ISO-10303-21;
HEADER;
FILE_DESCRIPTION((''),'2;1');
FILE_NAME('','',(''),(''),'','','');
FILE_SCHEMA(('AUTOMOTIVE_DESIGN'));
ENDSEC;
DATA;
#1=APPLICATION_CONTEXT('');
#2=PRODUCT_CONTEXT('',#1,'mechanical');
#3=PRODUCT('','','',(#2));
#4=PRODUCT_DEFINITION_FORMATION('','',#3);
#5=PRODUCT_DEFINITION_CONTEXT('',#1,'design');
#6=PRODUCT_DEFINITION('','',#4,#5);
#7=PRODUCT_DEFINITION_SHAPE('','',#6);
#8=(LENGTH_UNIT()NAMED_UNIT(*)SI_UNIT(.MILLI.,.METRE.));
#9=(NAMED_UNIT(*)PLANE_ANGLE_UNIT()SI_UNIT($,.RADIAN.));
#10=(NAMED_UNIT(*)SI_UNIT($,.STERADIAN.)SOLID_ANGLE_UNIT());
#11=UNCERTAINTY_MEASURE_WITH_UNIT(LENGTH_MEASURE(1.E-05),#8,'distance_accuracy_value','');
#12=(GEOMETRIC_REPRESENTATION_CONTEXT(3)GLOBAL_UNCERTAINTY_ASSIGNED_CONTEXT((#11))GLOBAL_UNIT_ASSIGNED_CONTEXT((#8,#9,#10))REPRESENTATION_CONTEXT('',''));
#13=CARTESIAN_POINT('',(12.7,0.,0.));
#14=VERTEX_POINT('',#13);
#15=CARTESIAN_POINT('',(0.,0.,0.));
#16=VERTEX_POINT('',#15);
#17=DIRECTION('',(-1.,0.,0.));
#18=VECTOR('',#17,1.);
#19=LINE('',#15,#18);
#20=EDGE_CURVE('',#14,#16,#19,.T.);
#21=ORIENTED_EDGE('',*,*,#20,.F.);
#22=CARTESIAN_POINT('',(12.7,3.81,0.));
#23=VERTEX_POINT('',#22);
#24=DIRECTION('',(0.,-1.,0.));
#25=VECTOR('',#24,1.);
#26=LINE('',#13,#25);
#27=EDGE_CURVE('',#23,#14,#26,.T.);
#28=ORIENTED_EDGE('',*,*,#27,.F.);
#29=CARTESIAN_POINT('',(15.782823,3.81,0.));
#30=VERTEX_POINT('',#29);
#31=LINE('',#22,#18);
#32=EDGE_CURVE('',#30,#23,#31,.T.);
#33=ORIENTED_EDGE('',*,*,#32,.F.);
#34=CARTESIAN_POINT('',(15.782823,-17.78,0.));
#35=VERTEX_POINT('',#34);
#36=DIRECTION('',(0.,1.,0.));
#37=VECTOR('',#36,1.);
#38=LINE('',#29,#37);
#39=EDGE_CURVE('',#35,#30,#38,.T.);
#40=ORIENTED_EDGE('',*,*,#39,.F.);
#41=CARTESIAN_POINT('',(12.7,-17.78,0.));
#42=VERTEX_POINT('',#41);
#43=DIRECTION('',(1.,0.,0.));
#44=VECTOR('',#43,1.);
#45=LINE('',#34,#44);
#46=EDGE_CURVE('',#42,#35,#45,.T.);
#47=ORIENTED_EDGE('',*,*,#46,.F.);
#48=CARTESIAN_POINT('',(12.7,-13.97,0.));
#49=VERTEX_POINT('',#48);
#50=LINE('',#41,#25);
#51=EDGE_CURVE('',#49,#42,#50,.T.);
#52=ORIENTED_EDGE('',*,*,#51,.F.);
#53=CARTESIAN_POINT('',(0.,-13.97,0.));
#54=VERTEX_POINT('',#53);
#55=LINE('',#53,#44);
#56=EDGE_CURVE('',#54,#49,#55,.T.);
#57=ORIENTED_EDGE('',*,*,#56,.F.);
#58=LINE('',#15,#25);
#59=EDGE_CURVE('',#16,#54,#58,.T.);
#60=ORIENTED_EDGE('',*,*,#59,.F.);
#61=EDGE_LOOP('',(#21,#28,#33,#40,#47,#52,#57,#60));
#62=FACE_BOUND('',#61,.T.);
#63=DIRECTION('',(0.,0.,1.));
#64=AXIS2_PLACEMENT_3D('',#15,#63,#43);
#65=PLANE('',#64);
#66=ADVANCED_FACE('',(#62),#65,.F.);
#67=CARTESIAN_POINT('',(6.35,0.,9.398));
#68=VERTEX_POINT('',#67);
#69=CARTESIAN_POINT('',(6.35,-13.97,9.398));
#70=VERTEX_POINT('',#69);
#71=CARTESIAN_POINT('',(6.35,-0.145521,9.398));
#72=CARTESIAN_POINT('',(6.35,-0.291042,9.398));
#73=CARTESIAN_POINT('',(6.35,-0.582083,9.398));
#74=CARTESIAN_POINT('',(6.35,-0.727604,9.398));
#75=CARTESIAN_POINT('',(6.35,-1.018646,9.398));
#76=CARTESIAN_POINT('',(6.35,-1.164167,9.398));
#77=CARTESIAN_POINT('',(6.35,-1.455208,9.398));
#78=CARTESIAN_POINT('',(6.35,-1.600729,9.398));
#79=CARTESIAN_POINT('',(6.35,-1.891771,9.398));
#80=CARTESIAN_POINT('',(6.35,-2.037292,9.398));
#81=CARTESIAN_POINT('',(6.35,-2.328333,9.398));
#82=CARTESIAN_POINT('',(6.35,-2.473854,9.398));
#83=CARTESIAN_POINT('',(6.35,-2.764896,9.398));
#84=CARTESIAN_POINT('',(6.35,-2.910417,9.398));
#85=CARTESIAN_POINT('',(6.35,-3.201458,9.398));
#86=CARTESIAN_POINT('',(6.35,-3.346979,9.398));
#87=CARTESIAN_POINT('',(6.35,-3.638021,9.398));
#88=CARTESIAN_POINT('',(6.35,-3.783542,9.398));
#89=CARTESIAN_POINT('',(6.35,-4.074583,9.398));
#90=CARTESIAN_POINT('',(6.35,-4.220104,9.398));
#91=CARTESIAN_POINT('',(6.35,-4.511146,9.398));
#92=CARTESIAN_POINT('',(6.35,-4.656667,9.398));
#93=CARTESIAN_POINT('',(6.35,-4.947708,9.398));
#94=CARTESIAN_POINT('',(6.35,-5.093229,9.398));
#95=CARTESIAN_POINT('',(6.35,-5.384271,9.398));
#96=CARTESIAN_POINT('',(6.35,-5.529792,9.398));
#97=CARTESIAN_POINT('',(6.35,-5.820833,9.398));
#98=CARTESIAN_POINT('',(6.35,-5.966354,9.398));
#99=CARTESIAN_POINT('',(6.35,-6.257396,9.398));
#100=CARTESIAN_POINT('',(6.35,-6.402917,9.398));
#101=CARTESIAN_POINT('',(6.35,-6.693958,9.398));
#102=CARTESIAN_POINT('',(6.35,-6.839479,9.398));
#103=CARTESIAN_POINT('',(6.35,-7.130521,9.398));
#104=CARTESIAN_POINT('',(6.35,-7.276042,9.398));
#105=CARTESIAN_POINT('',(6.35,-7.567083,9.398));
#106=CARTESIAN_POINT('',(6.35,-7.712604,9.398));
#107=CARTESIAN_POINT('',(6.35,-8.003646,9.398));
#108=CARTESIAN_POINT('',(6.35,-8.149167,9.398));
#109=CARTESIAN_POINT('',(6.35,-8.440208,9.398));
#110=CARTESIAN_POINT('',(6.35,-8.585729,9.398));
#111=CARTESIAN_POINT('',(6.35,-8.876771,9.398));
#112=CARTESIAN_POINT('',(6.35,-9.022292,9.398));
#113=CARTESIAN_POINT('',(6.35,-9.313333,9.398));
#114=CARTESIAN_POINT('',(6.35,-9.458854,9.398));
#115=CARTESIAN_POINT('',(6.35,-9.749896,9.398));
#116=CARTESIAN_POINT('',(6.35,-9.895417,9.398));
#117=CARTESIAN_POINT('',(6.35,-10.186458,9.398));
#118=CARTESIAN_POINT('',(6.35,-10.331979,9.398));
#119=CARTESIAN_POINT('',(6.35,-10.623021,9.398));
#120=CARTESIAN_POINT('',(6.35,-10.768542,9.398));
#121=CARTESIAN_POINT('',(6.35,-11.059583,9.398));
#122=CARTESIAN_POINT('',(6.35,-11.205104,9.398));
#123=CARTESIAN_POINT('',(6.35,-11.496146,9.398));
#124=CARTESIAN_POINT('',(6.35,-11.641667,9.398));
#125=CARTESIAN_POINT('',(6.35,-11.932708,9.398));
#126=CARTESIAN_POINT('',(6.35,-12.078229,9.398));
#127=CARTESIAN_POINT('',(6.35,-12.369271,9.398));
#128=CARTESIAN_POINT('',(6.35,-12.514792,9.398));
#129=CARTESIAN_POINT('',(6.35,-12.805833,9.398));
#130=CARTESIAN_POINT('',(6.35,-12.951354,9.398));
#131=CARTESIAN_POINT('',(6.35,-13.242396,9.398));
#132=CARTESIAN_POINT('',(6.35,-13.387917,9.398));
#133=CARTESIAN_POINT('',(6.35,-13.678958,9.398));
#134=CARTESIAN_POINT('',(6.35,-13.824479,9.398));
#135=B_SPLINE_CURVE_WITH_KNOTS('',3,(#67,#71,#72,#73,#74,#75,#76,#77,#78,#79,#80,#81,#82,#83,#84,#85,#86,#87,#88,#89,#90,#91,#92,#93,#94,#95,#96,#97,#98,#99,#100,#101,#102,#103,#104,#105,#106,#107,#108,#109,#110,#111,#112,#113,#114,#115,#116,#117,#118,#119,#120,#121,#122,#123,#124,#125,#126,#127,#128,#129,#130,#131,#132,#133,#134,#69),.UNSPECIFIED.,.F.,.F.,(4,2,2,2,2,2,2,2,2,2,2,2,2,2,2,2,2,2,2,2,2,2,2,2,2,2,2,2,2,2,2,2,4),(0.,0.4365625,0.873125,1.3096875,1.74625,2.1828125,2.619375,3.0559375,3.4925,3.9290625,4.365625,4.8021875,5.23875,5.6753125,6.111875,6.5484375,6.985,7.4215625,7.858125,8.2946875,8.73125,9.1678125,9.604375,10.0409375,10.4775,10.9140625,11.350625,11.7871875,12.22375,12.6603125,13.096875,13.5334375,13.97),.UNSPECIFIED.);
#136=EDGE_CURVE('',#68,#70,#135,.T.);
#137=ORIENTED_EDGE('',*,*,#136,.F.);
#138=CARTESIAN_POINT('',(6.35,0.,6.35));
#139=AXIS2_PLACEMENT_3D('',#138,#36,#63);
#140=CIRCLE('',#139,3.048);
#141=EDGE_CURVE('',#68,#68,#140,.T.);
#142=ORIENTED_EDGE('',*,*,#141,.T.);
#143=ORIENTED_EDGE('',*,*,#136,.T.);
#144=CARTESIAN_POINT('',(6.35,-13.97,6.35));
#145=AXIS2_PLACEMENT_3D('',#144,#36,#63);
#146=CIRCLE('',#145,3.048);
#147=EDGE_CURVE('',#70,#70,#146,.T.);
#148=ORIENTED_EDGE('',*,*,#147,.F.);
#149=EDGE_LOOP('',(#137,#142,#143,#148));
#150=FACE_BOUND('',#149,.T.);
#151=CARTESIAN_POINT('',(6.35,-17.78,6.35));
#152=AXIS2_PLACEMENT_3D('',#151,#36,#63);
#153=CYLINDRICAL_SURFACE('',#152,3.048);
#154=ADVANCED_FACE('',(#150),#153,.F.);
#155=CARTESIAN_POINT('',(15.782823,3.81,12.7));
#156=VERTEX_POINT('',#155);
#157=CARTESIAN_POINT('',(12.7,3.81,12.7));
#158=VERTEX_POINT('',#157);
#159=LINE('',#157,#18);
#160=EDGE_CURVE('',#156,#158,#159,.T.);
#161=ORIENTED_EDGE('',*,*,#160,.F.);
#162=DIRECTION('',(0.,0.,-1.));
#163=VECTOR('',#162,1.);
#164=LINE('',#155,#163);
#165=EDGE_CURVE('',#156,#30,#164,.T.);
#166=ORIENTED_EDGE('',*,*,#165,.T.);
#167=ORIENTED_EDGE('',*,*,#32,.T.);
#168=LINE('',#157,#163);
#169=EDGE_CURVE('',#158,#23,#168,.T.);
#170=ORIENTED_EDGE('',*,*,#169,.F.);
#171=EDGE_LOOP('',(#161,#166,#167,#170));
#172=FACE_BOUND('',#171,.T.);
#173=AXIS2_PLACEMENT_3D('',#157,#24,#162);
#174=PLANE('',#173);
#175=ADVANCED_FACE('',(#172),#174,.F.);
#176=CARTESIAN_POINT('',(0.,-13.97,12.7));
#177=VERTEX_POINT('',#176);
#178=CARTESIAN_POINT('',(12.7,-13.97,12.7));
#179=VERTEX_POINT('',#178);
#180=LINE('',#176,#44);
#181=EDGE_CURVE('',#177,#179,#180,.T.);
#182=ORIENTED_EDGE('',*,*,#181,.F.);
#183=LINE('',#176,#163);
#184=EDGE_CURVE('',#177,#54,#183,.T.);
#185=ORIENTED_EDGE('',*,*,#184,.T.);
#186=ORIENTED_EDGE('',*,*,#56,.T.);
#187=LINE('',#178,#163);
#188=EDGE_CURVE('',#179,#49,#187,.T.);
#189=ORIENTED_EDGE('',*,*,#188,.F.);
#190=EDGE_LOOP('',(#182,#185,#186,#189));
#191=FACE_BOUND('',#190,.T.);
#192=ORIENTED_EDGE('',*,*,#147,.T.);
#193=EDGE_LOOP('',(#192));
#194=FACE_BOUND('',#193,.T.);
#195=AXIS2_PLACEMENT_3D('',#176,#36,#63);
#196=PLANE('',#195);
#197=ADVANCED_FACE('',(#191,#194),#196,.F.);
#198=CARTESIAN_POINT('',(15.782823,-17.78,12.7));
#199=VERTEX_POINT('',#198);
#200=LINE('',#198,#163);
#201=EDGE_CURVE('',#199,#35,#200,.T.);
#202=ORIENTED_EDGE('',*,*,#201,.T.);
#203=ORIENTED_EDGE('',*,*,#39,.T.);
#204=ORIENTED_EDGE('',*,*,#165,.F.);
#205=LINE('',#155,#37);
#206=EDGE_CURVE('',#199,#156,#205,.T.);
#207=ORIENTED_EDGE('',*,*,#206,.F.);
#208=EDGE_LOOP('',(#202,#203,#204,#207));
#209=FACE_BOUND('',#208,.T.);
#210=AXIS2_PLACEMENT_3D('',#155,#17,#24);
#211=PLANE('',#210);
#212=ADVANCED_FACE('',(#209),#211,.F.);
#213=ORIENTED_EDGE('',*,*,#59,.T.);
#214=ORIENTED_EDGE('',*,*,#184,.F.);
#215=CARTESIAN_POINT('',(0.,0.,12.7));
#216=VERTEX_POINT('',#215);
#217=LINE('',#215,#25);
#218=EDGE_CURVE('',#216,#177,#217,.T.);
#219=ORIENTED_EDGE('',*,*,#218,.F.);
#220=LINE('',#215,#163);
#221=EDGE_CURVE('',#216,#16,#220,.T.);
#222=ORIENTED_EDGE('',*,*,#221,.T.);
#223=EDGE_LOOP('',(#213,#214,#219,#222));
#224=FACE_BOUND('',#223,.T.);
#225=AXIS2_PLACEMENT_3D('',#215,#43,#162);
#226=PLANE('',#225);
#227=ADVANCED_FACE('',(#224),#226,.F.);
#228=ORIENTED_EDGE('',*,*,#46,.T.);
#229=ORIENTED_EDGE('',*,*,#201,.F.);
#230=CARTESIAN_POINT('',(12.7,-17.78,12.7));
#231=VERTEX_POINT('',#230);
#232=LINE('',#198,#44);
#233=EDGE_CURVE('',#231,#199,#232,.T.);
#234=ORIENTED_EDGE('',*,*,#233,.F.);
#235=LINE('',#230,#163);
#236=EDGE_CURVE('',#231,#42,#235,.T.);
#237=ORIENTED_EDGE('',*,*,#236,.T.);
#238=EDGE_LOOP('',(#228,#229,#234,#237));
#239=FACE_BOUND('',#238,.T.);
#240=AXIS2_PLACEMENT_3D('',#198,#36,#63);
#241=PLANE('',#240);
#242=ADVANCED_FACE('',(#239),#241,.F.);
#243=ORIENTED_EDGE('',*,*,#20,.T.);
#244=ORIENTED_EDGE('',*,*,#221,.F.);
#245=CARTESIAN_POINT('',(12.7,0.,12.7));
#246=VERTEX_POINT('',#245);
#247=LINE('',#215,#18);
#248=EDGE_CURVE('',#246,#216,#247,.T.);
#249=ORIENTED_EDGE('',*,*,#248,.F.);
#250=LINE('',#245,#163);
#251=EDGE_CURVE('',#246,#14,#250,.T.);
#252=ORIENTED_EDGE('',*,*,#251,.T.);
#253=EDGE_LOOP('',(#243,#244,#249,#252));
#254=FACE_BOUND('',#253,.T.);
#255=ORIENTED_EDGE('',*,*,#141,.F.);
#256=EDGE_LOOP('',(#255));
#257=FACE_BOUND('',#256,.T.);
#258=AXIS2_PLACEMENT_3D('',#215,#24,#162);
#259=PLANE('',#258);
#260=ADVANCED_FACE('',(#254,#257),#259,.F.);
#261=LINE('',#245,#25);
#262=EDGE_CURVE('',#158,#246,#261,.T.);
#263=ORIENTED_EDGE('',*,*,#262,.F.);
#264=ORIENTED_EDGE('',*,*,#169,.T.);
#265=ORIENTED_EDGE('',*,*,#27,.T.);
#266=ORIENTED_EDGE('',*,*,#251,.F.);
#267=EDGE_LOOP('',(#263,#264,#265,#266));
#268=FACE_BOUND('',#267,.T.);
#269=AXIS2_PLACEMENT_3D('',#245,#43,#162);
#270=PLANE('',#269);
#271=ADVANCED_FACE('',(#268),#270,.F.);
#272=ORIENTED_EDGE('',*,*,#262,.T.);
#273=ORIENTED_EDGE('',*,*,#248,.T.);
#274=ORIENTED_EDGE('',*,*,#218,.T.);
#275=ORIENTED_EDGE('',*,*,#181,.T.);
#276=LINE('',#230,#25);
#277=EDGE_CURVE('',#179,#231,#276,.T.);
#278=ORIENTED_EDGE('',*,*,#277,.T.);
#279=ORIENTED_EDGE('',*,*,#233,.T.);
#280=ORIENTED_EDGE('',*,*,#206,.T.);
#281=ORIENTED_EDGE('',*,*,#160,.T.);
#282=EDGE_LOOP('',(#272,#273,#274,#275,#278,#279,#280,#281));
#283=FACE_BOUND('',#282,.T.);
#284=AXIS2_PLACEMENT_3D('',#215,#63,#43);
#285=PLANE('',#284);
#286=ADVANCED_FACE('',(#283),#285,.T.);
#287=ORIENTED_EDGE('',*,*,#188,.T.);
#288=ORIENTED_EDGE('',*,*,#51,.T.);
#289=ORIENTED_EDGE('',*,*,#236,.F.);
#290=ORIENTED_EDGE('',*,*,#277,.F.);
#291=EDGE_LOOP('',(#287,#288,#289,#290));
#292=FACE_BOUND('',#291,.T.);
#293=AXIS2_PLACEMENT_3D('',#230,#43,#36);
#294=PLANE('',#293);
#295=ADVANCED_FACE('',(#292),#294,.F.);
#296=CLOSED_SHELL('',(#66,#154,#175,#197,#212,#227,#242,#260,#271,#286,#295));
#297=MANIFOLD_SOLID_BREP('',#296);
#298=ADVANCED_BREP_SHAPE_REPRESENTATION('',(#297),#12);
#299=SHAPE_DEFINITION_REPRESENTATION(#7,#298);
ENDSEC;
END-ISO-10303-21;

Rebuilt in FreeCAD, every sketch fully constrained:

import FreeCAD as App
import Part
import Sketcher
Q = App.Units.Quantity

doc = App.newDocument("Part")
body = doc.addObject("PartDesign::Body", "Body")

# Sketch on XY plane
sketch1 = doc.addObject("Sketcher::SketchObject", "Sketch")
body.addObject(sketch1)
sketch1.AttachmentSupport = (doc.XY_Plane, [""])
sketch1.MapMode = "FlatFace"
sketch1.addGeometry([
    Part.LineSegment(App.Vector(12.7, 3.8, 0), App.Vector(12.7, 0, 0)),  # 0
    Part.LineSegment(App.Vector(12.7, 0, 0), App.Vector(0, 0, 0)),  # 1
    Part.LineSegment(App.Vector(0, 0, 0), App.Vector(0, -14, 0)),  # 2
    Part.LineSegment(App.Vector(0, -14, 0), App.Vector(12.7, -14, 0)),  # 3
    Part.LineSegment(App.Vector(12.7, -14, 0), App.Vector(12.7, -17.8, 0)),  # 4
    Part.LineSegment(App.Vector(12.7, -17.8, 0), App.Vector(15.8, -17.8, 0)),  # 5
    Part.LineSegment(App.Vector(15.8, -17.8, 0), App.Vector(15.8, 3.8, 0)),  # 6
    Part.LineSegment(App.Vector(15.8, 3.8, 0), App.Vector(12.7, 3.8, 0)),  # 7
], False)
sketch1.addConstraint([
    Sketcher.Constraint("Coincident", 0, 2, 1, 1),
    Sketcher.Constraint("Coincident", 1, 2, 2, 1),
    Sketcher.Constraint("Coincident", 2, 2, 3, 1),
    Sketcher.Constraint("Coincident", 3, 2, 4, 1),
    Sketcher.Constraint("Coincident", 4, 2, 5, 1),
    Sketcher.Constraint("Coincident", 5, 2, 6, 1),
    Sketcher.Constraint("Coincident", 6, 2, 7, 1),
    Sketcher.Constraint("Coincident", 7, 2, 0, 1),
    Sketcher.Constraint("Vertical", 0),
    Sketcher.Constraint("Horizontal", 1),
    Sketcher.Constraint("Vertical", 2),
    Sketcher.Constraint("Horizontal", 3),
    Sketcher.Constraint("Vertical", 4),
    Sketcher.Constraint("Horizontal", 5),
    Sketcher.Constraint("Vertical", 6),
    Sketcher.Constraint("Horizontal", 7),
    Sketcher.Constraint("Coincident", 1, 2, -1, 1),
    Sketcher.Constraint("Vertical", 0, 2, 3, 2),
    Sketcher.Constraint("Equal", 0, 4),
    Sketcher.Constraint("DistanceX", 1, 2, 1, 1, Q("0.5 in")),
    Sketcher.Constraint("DistanceY", 0, 2, 0, 1, Q("0.15 in")),
    Sketcher.Constraint("DistanceY", 2, 2, 2, 1, Q("0.55 in")),
    Sketcher.Constraint("DistanceX", 5, 1, 5, 2, Q("3.082823 mm")),
])
pad1 = doc.addObject("PartDesign::Pad", "Pad")
body.addObject(pad1)
pad1.Profile = sketch1
pad1.Length = Q("0.5 in")

# Sketch on XZ plane
sketch2 = doc.addObject("Sketcher::SketchObject", "Sketch001")
body.addObject(sketch2)
sketch2.AttachmentSupport = (doc.XZ_Plane, [""])
sketch2.MapMode = "FlatFace"
sketch2.addGeometry(Part.Circle(App.Vector(6.3, 6.3, 0), App.Vector(0, 0, 1), 3), False)
sketch2.addConstraint([
    Sketcher.Constraint("Diameter", 0, Q("0.24 in")),
    Sketcher.Constraint("DistanceX", -1, 1, 0, 3, Q("0.25 in")),
    Sketcher.Constraint("DistanceY", -1, 1, 0, 3, Q("0.25 in")),
])
pocket1 = doc.addObject("PartDesign::Pocket", "Pocket")
body.addObject(pocket1)
pocket1.Profile = sketch2
pocket1.Length = Q("0.7 in")
pocket1.Reversed = True

doc.recompute()
